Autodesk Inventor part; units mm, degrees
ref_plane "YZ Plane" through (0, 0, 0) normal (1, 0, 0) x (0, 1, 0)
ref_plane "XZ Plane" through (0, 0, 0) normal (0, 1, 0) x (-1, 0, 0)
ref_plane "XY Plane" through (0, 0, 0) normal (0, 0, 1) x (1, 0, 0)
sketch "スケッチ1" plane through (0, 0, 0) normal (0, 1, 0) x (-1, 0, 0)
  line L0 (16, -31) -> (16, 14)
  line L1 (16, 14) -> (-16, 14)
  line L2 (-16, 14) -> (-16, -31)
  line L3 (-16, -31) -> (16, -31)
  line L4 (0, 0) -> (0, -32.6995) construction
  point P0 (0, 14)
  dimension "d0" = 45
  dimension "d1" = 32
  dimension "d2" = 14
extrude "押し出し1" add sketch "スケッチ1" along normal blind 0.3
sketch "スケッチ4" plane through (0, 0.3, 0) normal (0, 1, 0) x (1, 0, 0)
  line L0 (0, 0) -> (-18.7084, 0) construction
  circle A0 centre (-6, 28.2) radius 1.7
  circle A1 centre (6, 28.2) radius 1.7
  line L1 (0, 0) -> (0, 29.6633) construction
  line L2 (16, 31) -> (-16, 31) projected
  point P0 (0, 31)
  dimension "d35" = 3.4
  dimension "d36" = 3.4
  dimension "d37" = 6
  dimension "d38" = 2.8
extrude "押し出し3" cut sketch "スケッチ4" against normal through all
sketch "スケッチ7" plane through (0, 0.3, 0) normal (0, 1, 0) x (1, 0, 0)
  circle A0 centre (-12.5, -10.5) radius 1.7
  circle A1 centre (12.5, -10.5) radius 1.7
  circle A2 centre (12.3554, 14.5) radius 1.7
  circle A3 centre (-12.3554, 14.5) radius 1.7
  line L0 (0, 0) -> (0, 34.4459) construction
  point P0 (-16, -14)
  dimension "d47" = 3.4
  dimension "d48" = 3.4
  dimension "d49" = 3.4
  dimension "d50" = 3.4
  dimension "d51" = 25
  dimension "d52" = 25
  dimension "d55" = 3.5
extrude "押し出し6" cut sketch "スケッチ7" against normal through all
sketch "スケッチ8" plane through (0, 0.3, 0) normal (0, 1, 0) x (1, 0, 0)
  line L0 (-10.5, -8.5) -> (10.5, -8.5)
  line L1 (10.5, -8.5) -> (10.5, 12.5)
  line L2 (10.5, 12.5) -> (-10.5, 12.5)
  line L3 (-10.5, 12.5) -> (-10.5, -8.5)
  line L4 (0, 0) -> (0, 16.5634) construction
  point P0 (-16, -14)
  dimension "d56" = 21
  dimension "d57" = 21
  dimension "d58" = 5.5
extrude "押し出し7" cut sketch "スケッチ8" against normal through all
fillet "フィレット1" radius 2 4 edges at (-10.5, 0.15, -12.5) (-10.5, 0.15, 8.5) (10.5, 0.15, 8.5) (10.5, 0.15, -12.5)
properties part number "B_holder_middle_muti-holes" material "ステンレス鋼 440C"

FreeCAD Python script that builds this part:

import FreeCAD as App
import Part
import Sketcher

V = App.Vector
Q = App.Units.Quantity


def edges_at(feature, points):
    """Names of the edges that pass closest to the given points."""
    edges = feature.Shape.Edges
    near = lambda p: min(range(len(edges)), key=lambda i: edges[i].distToShape(Part.Vertex(*p))[0])
    return sorted({f"Edge{near(p) + 1}" for p in points})


def add_polygon(sketch, points):
    """Adds a closed chain of lines whose ends are joined by coincident constraints."""
    first, n = sketch.GeometryCount, len(points)
    for a, b in zip(points, points[1:] + points[:1]):
        sketch.addGeometry(Part.LineSegment(App.Vector(*a, 0), App.Vector(*b, 0)), False)
    for i in range(n):
        sketch.addConstraint(Sketcher.Constraint("Coincident", first + i, 2, first + (i + 1) % n, 1))

doc = App.newDocument("Part")
body = doc.addObject("PartDesign::Body", "Body")

# Sketch on XZ plane
sketch1 = body.newObject("Sketcher::SketchObject", "Sketch")
sketch1.AttachmentSupport = (doc.getObject("XZ_Plane"), [""])
sketch1.MapMode = "FlatFace"
add_polygon(sketch1, [(16, -31), (-16, -31), (-16, 14), (16, 14)])  # lines 0-3
sketch1.addConstraint([
    Sketcher.Constraint("Horizontal", 0),
    Sketcher.Constraint("Vertical", 1),
    Sketcher.Constraint("Horizontal", 2),
    Sketcher.Constraint("Vertical", 3),
    Sketcher.Constraint("DistanceX", 0, 2, 0, 1, Q("32 mm")),
    Sketcher.Constraint("DistanceY", 1, 1, 1, 2, Q("45 mm")),
    Sketcher.Constraint("DistanceY", -1, 1, 1, 2, Q("14 mm")),
    Sketcher.Constraint("DistanceX", 0, 2, -1, 1, Q("16 mm")),
])
pad1 = body.newObject("PartDesign::Pad", "Pad")
pad1.Profile = sketch1
pad1.Length = 0.3
pad1.Reversed = True

# Sketch on XZ plane
sketch2 = body.newObject("Sketcher::SketchObject", "Sketch001")
sketch2.AttachmentSupport = (doc.getObject("XZ_Plane"), [""])
sketch2.MapMode = "FlatFace"
sketch2.AttachmentOffset = App.Placement(V(0, 0, -0.3), App.Rotation())
sketch2.addGeometry([
    Part.Circle(V(-6, -28.2, 0), V(0, 0, 1), 1.7),
    Part.Circle(V(6, -28.2, 0), V(0, 0, 1), 1.7),
], False)
sketch2.addConstraint([
    Sketcher.Constraint("Equal", 0, 1),
    Sketcher.Constraint("Symmetric", 0, 3, 1, 3, -2),
    Sketcher.Constraint("Diameter", 0, Q("3.4 mm")),
    Sketcher.Constraint("DistanceX", 0, 3, -1, 1, Q("6 mm")),
    Sketcher.Constraint("DistanceY", 0, 3, -1, 1, Q("28.2 mm")),
])
pocket1 = body.newObject("PartDesign::Pocket", "Pocket")
pocket1.Profile = sketch2
pocket1.Type = "ThroughAll"
pocket1.Reversed = True

# Sketch on XZ plane
sketch3 = body.newObject("Sketcher::SketchObject", "Sketch002")
sketch3.AttachmentSupport = (doc.getObject("XZ_Plane"), [""])
sketch3.MapMode = "FlatFace"
sketch3.AttachmentOffset = App.Placement(V(0, 0, -0.3), App.Rotation())
sketch3.addGeometry([
    Part.Circle(V(-12.5, 10.5, 0), V(0, 0, 1), 1.7),
    Part.Circle(V(12.5, 10.5, 0), V(0, 0, 1), 1.7),
    Part.Circle(V(12.4, -14.5, 0), V(0, 0, 1), 1.7),
    Part.Circle(V(-12.4, -14.5, 0), V(0, 0, 1), 1.7),
], False)
sketch3.addConstraint([
    Sketcher.Constraint("Equal", 0, 1),
    Sketcher.Constraint("Equal", 1, 2),
    Sketcher.Constraint("Equal", 2, 3),
    Sketcher.Constraint("Symmetric", 0, 3, 1, 3, -2),
    Sketcher.Constraint("Symmetric", 2, 3, 3, 3, -2),
    Sketcher.Constraint("Diameter", 0, Q("3.4 mm")),
    Sketcher.Constraint("DistanceX", 0, 3, 1, 3, Q("25 mm")),
    Sketcher.Constraint("DistanceY", 2, 3, 1, 3, Q("25 mm")),
    Sketcher.Constraint("DistanceY", -1, 1, 0, 3, Q("10.5 mm")),
    Sketcher.Constraint("DistanceX", -1, 1, 2, 3, Q("12.3554 mm")),
])
pocket2 = body.newObject("PartDesign::Pocket", "Pocket001")
pocket2.Profile = sketch3
pocket2.Type = "ThroughAll"
pocket2.Reversed = True

# Sketch on XZ plane
sketch4 = body.newObject("Sketcher::SketchObject", "Sketch003")
sketch4.AttachmentSupport = (doc.getObject("XZ_Plane"), [""])
sketch4.MapMode = "FlatFace"
sketch4.AttachmentOffset = App.Placement(V(0, 0, -0.3), App.Rotation())
add_polygon(sketch4, [(-10, -12), (-10, 8), (10, 8), (10, -12)])  # lines 0-3
sketch4.addConstraint([
    Sketcher.Constraint("Vertical", 0),
    Sketcher.Constraint("Horizontal", 1),
    Sketcher.Constraint("Vertical", 2),
    Sketcher.Constraint("Horizontal", 3),
    Sketcher.Constraint("Equal", 3, 0),
    Sketcher.Constraint("DistanceX", 1, 1, 1, 2, Q("21 mm")),
    Sketcher.Constraint("DistanceX", 0, 2, -1, 1, Q("10.5 mm")),
    Sketcher.Constraint("DistanceY", -1, 1, 0, 2, Q("8.5 mm")),
])
pocket3 = body.newObject("PartDesign::Pocket", "Pocket002")
pocket3.Profile = sketch4
pocket3.Type = "ThroughAll"
pocket3.Reversed = True
doc.recompute()

fillet = body.newObject("PartDesign::Fillet", "Fillet")
fillet.Base = (pocket3, edges_at(pocket3, [
    (-10.5, 0.15, -12.5),
    (-10.5, 0.15, 8.5),
    (10.5, 0.15, 8.5),
    (10.5, 0.15, -12.5),
]))
fillet.Radius = 2

doc.recompute()
